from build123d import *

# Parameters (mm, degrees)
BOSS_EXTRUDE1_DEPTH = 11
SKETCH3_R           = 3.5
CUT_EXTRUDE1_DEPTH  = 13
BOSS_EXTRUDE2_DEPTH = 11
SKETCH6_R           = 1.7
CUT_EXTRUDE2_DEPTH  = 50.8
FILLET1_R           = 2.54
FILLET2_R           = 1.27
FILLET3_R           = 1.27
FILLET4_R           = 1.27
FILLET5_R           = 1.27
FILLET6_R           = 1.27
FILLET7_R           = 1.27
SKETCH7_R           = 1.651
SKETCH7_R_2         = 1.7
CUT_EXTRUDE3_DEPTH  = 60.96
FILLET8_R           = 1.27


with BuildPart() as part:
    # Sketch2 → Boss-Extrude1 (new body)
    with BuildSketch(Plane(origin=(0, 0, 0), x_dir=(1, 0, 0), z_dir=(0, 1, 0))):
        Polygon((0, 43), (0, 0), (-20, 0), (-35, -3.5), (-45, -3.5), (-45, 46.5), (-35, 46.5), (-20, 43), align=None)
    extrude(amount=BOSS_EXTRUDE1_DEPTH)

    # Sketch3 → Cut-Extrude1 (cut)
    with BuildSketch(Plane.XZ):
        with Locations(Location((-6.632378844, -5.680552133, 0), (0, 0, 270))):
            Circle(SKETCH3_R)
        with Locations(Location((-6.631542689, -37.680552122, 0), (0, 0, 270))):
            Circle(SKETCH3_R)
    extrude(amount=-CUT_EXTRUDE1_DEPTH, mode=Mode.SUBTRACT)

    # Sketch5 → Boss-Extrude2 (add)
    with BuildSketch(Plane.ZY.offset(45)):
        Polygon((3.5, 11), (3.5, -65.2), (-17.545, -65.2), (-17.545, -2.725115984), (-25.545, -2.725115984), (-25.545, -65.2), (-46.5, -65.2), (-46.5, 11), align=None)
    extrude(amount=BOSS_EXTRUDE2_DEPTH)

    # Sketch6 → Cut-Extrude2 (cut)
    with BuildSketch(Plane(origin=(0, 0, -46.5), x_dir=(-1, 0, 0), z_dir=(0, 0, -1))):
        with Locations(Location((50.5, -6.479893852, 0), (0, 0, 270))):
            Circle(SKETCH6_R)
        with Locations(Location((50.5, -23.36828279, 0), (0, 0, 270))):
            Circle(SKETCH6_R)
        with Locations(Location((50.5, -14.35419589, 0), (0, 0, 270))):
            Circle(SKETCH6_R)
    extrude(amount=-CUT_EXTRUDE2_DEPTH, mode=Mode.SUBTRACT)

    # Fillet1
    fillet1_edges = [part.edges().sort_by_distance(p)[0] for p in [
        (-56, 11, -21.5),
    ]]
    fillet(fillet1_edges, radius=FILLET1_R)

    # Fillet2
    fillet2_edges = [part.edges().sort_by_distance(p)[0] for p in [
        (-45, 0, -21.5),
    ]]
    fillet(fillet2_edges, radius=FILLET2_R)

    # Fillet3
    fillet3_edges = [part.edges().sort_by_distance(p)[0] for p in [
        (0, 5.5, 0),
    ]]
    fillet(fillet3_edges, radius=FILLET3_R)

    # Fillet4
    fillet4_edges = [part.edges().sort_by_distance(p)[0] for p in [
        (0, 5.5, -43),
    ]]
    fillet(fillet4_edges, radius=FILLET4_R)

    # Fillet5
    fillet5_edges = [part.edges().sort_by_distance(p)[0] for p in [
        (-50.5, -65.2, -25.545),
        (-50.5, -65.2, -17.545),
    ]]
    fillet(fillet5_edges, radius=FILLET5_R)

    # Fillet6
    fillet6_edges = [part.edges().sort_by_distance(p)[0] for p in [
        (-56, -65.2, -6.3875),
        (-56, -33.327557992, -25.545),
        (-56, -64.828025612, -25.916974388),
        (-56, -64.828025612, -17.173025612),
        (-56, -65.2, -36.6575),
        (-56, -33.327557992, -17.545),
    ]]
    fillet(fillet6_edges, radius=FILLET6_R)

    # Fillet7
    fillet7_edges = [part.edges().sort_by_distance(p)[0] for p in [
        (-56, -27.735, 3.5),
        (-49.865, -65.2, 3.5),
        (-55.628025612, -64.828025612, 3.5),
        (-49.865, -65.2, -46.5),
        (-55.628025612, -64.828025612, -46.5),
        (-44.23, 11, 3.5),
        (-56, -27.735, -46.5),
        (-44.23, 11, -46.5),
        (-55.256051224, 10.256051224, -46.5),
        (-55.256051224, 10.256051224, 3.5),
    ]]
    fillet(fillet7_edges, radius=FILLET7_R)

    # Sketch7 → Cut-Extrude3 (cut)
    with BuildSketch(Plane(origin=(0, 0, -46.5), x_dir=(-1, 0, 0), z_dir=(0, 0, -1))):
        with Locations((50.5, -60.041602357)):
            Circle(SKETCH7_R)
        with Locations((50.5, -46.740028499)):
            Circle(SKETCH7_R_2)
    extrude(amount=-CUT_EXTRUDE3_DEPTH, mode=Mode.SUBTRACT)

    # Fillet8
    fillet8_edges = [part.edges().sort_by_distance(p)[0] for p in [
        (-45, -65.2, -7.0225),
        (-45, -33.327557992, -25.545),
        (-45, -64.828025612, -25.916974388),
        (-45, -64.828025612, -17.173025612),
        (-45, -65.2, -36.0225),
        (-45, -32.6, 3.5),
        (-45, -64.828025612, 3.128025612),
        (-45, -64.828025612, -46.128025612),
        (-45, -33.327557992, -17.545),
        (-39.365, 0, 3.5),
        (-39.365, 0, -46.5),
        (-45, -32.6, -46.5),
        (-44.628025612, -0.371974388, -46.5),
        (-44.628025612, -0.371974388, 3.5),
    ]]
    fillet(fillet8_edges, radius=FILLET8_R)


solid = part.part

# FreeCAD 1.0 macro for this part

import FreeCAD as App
import Part
import Sketcher
from FreeCAD import Vector
Q = App.Units.Quantity


def edges_at(feature, points):
    """Names of the edges that pass closest to the given points."""
    edges = feature.Shape.Edges
    near = lambda p: min(range(len(edges)), key=lambda i: edges[i].distToShape(Part.Vertex(*p))[0])
    return sorted({f"Edge{near(p) + 1}" for p in points})

doc = App.newDocument("Part")
body = doc.addObject("PartDesign::Body", "Body")

# Sketch on XZ plane
sketch1 = doc.addObject("Sketcher::SketchObject", "Sketch")
body.addObject(sketch1)
sketch1.AttachmentSupport = (doc.XZ_Plane, [""])
sketch1.MapMode = "FlatFace"
sketch1.addGeometry(Part.LineSegment(Vector(0, 0, 0), Vector(0, -43, 0)), False)
sketch1.addGeometry(Part.LineSegment(Vector(0, -43, 0), Vector(-20, -43, 0)), False)
sketch1.addGeometry(Part.LineSegment(Vector(-20, -43, 0), Vector(-35, -46, 0)), False)
sketch1.addGeometry(Part.LineSegment(Vector(-35, -46, 0), Vector(-45, -46, 0)), False)
sketch1.addGeometry(Part.LineSegment(Vector(-45, -46, 0), Vector(-45, 4, 0)), False)
sketch1.addGeometry(Part.LineSegment(Vector(-45, 4, 0), Vector(-35, 4, 0)), False)
sketch1.addGeometry(Part.LineSegment(Vector(-35, 4, 0), Vector(-20, 0, 0)), False)
sketch1.addGeometry(Part.LineSegment(Vector(-20, 0, 0), Vector(0, 0, 0)), False)
sketch1.addConstraint(Sketcher.Constraint("Coincident", 0, 2, 1, 1))
sketch1.addConstraint(Sketcher.Constraint("Coincident", 1, 2, 2, 1))
sketch1.addConstraint(Sketcher.Constraint("Coincident", 2, 2, 3, 1))
sketch1.addConstraint(Sketcher.Constraint("Coincident", 3, 2, 4, 1))
sketch1.addConstraint(Sketcher.Constraint("Coincident", 4, 2, 5, 1))
sketch1.addConstraint(Sketcher.Constraint("Coincident", 5, 2, 6, 1))
sketch1.addConstraint(Sketcher.Constraint("Coincident", 6, 2, 7, 1))
sketch1.addConstraint(Sketcher.Constraint("Coincident", 7, 2, 0, 1))
sketch1.addConstraint(Sketcher.Constraint("Vertical", 0))
sketch1.addConstraint(Sketcher.Constraint("Horizontal", 1))
sketch1.addConstraint(Sketcher.Constraint("Horizontal", 3))
sketch1.addConstraint(Sketcher.Constraint("Vertical", 4))
sketch1.addConstraint(Sketcher.Constraint("Horizontal", 5))
sketch1.addConstraint(Sketcher.Constraint("Horizontal", 7))
sketch1.addConstraint(Sketcher.Constraint("Coincident", 7, 2, -1, 1))
sketch1.addConstraint(Sketcher.Constraint("Vertical", 2, 2, 5, 2))
sketch1.addConstraint(Sketcher.Constraint("Vertical", 1, 2, 6, 2))
sketch1.addConstraint(Sketcher.Constraint("Equal", 2, 6))
sketch1.addConstraint(Sketcher.Constraint("DistanceX", 1, 2, 1, 1, Q("20 mm")))
sketch1.addConstraint(Sketcher.Constraint("DistanceX", 3, 2, 3, 1, Q("10 mm")))
sketch1.addConstraint(Sketcher.Constraint("DistanceY", 0, 2, 0, 1, Q("43 mm")))
sketch1.addConstraint(Sketcher.Constraint("DistanceY", 4, 1, 4, 2, Q("50 mm")))
sketch1.addConstraint(Sketcher.Constraint("DistanceX", 2, 2, -1, 1, Q("35 mm")))
pad1 = doc.addObject("PartDesign::Pad", "Pad")
body.addObject(pad1)
pad1.Profile = sketch1
pad1.Length = 11
pad1.Reversed = True

# Sketch on XZ plane
sketch2 = doc.addObject("Sketcher::SketchObject", "Sketch001")
body.addObject(sketch2)
sketch2.AttachmentSupport = (doc.XZ_Plane, [""])
sketch2.MapMode = "FlatFace"
sketch2.addGeometry(Part.Circle(Vector(-6.6, -5.7, 0), Vector(0, 0, 1), 3.5), False)
sketch2.addGeometry(Part.Circle(Vector(-6.6, -37.7, 0), Vector(0, 0, 1), 3.5), False)
sketch2.addConstraint(Sketcher.Constraint("Equal", 0, 1))
sketch2.addConstraint(Sketcher.Constraint("Diameter", 0, Q("7 mm")))
sketch2.addConstraint(Sketcher.Constraint("DistanceY", 1, 3, 0, 3, Q("32 mm")))
sketch2.addConstraint(Sketcher.Constraint("DistanceX", 0, 3, -1, 1, Q("6.632379 mm")))
sketch2.addConstraint(Sketcher.Constraint("DistanceY", 0, 3, -1, 1, Q("5.680552 mm")))
sketch2.addConstraint(Sketcher.Constraint("DistanceX", 1, 3, -1, 1, Q("6.631543 mm")))
pocket1 = doc.addObject("PartDesign::Pocket", "Pocket")
body.addObject(pocket1)
pocket1.Profile = sketch2
pocket1.Length = 13

# Sketch on YZ plane
sketch3 = doc.addObject("Sketcher::SketchObject", "Sketch002")
body.addObject(sketch3)
sketch3.AttachmentSupport = (doc.YZ_Plane, [""])
sketch3.MapMode = "FlatFace"
sketch3.AttachmentOffset = App.Placement(Vector(0, 0, -45), App.Rotation())
sketch3.addGeometry(Part.LineSegment(Vector(-65, 4, 0), Vector(11, 4, 0)), False)
sketch3.addGeometry(Part.LineSegment(Vector(11, 4, 0), Vector(11, -46, 0)), False)
sketch3.addGeometry(Part.LineSegment(Vector(11, -46, 0), Vector(-65, -46, 0)), False)
sketch3.addGeometry(Part.LineSegment(Vector(-65, -46, 0), Vector(-65, -26, 0)), False)
sketch3.addGeometry(Part.LineSegment(Vector(-65, -26, 0), Vector(-3, -26, 0)), False)
sketch3.addGeometry(Part.LineSegment(Vector(-3, -26, 0), Vector(-3, -18, 0)), False)
sketch3.addGeometry(Part.LineSegment(Vector(-3, -18, 0), Vector(-65, -18, 0)), False)
sketch3.addGeometry(Part.LineSegment(Vector(-65, -18, 0), Vector(-65, 4, 0)), False)
sketch3.addConstraint(Sketcher.Constraint("Coincident", 0, 2, 1, 1))
sketch3.addConstraint(Sketcher.Constraint("Coincident", 1, 2, 2, 1))
sketch3.addConstraint(Sketcher.Constraint("Coincident", 2, 2, 3, 1))
sketch3.addConstraint(Sketcher.Constraint("Coincident", 3, 2, 4, 1))
sketch3.addConstraint(Sketcher.Constraint("Coincident", 4, 2, 5, 1))
sketch3.addConstraint(Sketcher.Constraint("Coincident", 5, 2, 6, 1))
sketch3.addConstraint(Sketcher.Constraint("Coincident", 6, 2, 7, 1))
sketch3.addConstraint(Sketcher.Constraint("Coincident", 7, 2, 0, 1))
sketch3.addConstraint(Sketcher.Constraint("Horizontal", 0))
sketch3.addConstraint(Sketcher.Constraint("Vertical", 1))
sketch3.addConstraint(Sketcher.Constraint("Horizontal", 2))
sketch3.addConstraint(Sketcher.Constraint("Vertical", 3))
sketch3.addConstraint(Sketcher.Constraint("Horizontal", 4))
sketch3.addConstraint(Sketcher.Constraint("Vertical", 5))
sketch3.addConstraint(Sketcher.Constraint("Horizontal", 6))
sketch3.addConstraint(Sketcher.Constraint("Vertical", 7))
sketch3.addConstraint(Sketcher.Constraint("Vertical", 3, 2, 6, 2))
sketch3.addConstraint(Sketcher.Constraint("DistanceY", 1, 2, 1, 1, Q("50 mm")))
sketch3.addConstraint(Sketcher.Constraint("DistanceY", 5, 1, 5, 2, Q("8 mm")))
sketch3.addConstraint(Sketcher.Constraint("DistanceX", 0, 1, 0, 2, Q("76.2 mm")))
sketch3.addConstraint(Sketcher.Constraint("DistanceX", -1, 1, 0, 2, Q("11 mm")))
sketch3.addConstraint(Sketcher.Constraint("DistanceY", -1, 1, 0, 2, Q("3.5 mm")))
sketch3.addConstraint(Sketcher.Constraint("DistanceY", 3, 1, 3, 2, Q("20.955 mm")))
sketch3.addConstraint(Sketcher.Constraint("DistanceX", 4, 1, 4, 2, Q("62.474884 mm")))
pad2 = doc.addObject("PartDesign::Pad", "Pad001")
body.addObject(pad2)
pad2.Profile = sketch3
pad2.Length = 11
pad2.Reversed = True

# Sketch on XY plane
sketch4 = doc.addObject("Sketcher::SketchObject", "Sketch003")
body.addObject(sketch4)
sketch4.AttachmentSupport = (doc.XY_Plane, [""])
sketch4.MapMode = "FlatFace"
sketch4.AttachmentOffset = App.Placement(Vector(0, 0, -46.5), App.Rotation())
sketch4.addGeometry(Part.Circle(Vector(-50.5, -6.5, 0), Vector(0, 0, 1), 1.7), False)
sketch4.addGeometry(Part.Circle(Vector(-50.5, -23.4, 0), Vector(0, 0, 1), 1.7), False)
sketch4.addGeometry(Part.Circle(Vector(-50.5, -14.4, 0), Vector(0, 0, 1), 1.7), False)
sketch4.addConstraint(Sketcher.Constraint("Equal", 0, 1))
sketch4.addConstraint(Sketcher.Constraint("Equal", 1, 2))
sketch4.addConstraint(Sketcher.Constraint("Vertical", 0, 3, 1, 3))
sketch4.addConstraint(Sketcher.Constraint("Vertical", 1, 3, 2, 3))
sketch4.addConstraint(Sketcher.Constraint("Diameter", 0, Q("3.4 mm")))
sketch4.addConstraint(Sketcher.Constraint("DistanceX", 0, 3, -1, 1, Q("50.5 mm")))
sketch4.addConstraint(Sketcher.Constraint("DistanceY", 1, 3, 0, 3, Q("16.888389 mm")))
sketch4.addConstraint(Sketcher.Constraint("DistanceY", 0, 3, -1, 1, Q("6.479894 mm")))
sketch4.addConstraint(Sketcher.Constraint("DistanceY", 2, 3, -1, 1, Q("14.354196 mm")))
pocket2 = doc.addObject("PartDesign::Pocket", "Pocket001")
body.addObject(pocket2)
pocket2.Profile = sketch4
pocket2.Length = 50.8
pocket2.Reversed = True
doc.recompute()

fillet = doc.addObject("PartDesign::Fillet", "Fillet")
body.addObject(fillet)
fillet.Base = (pocket2, edges_at(pocket2, [(-56, 11, -21.5)]))
fillet.Radius = 2.54
doc.recompute()

fillet2 = doc.addObject("PartDesign::Fillet", "Fillet001")
body.addObject(fillet2)
fillet2.Base = (fillet, edges_at(fillet, [(-45, 0, -21.5)]))
fillet2.Radius = 1.27
doc.recompute()

fillet3 = doc.addObject("PartDesign::Fillet", "Fillet002")
body.addObject(fillet3)
fillet3.Base = (fillet2, edges_at(fillet2, [(0, 5.5, 0)]))
fillet3.Radius = 1.27
doc.recompute()

fillet4 = doc.addObject("PartDesign::Fillet", "Fillet003")
body.addObject(fillet4)
fillet4.Base = (fillet3, edges_at(fillet3, [(0, 5.5, -43)]))
fillet4.Radius = 1.27
doc.recompute()

fillet5 = doc.addObject("PartDesign::Fillet", "Fillet004")
body.addObject(fillet5)
fillet5.Base = (fillet4, edges_at(fillet4, [(-50.5, -65.2, -25.545), (-50.5, -65.2, -17.545)]))
fillet5.Radius = 1.27
doc.recompute()

fillet6 = doc.addObject("PartDesign::Fillet", "Fillet005")
body.addObject(fillet6)
fillet6.Base = (fillet5, edges_at(fillet5, [
    (-56, -65.2, -6.388),
    (-56, -33.328, -25.545),
    (-56, -64.828, -25.917),
    (-56, -64.828, -17.173),
    (-56, -65.2, -36.657),
    (-56, -33.328, -17.545),
]))
fillet6.Radius = 1.27
doc.recompute()

fillet7 = doc.addObject("PartDesign::Fillet", "Fillet006")
body.addObject(fillet7)
fillet7.Base = (fillet6, edges_at(fillet6, [
    (-56, -27.735, 3.5),
    (-49.865, -65.2, 3.5),
    (-55.628, -64.828, 3.5),
    (-49.865, -65.2, -46.5),
    (-55.628, -64.828, -46.5),
    (-44.23, 11, 3.5),
    (-56, -27.735, -46.5),
    (-44.23, 11, -46.5),
    (-55.256, 10.256, -46.5),
    (-55.256, 10.256, 3.5),
]))
fillet7.Radius = 1.27

# Sketch on XY plane
sketch5 = doc.addObject("Sketcher::SketchObject", "Sketch004")
body.addObject(sketch5)
sketch5.AttachmentSupport = (doc.XY_Plane, [""])
sketch5.MapMode = "FlatFace"
sketch5.AttachmentOffset = App.Placement(Vector(0, 0, -46.5), App.Rotation())
sketch5.addGeometry(Part.Circle(Vector(-50.5, -60, 0), Vector(0, 0, 1), 1.7), False)
sketch5.addGeometry(Part.Circle(Vector(-50.5, -46.7, 0), Vector(0, 0, 1), 1.7), False)
sketch5.addConstraint(Sketcher.Constraint("Vertical", 0, 3, 1, 3))
sketch5.addConstraint(Sketcher.Constraint("Diameter", 1, Q("3.4 mm")))
sketch5.addConstraint(Sketcher.Constraint("Diameter", 0, Q("3.302 mm")))
sketch5.addConstraint(Sketcher.Constraint("DistanceX", 0, 3, -1, 1, Q("50.5 mm")))
sketch5.addConstraint(Sketcher.Constraint("DistanceY", 1, 3, -1, 1, Q("46.740028 mm")))
sketch5.addConstraint(Sketcher.Constraint("DistanceY", 0, 3, -1, 1, Q("60.041602 mm")))
pocket3 = doc.addObject("PartDesign::Pocket", "Pocket002")
body.addObject(pocket3)
pocket3.Profile = sketch5
pocket3.Length = 60.96
pocket3.Reversed = True
doc.recompute()

fillet8 = doc.addObject("PartDesign::Fillet", "Fillet007")
body.addObject(fillet8)
fillet8.Base = (pocket3, edges_at(pocket3, [
    (-45, -65.2, -7.022),
    (-45, -33.328, -25.545),
    (-45, -64.828, -25.917),
    (-45, -64.828, -17.173),
    (-45, -65.2, -36.023),
    (-45, -32.6, 3.5),
    (-45, -64.828, 3.128),
    (-45, -64.828, -46.128),
    (-45, -33.328, -17.545),
    (-39.365, 0, 3.5),
    (-39.365, 0, -46.5),
    (-45, -32.6, -46.5),
    (-44.628, -0.372, -46.5),
    (-44.628, -0.372, 3.5),
]))
fillet8.Radius = 1.27

doc.recompute()
